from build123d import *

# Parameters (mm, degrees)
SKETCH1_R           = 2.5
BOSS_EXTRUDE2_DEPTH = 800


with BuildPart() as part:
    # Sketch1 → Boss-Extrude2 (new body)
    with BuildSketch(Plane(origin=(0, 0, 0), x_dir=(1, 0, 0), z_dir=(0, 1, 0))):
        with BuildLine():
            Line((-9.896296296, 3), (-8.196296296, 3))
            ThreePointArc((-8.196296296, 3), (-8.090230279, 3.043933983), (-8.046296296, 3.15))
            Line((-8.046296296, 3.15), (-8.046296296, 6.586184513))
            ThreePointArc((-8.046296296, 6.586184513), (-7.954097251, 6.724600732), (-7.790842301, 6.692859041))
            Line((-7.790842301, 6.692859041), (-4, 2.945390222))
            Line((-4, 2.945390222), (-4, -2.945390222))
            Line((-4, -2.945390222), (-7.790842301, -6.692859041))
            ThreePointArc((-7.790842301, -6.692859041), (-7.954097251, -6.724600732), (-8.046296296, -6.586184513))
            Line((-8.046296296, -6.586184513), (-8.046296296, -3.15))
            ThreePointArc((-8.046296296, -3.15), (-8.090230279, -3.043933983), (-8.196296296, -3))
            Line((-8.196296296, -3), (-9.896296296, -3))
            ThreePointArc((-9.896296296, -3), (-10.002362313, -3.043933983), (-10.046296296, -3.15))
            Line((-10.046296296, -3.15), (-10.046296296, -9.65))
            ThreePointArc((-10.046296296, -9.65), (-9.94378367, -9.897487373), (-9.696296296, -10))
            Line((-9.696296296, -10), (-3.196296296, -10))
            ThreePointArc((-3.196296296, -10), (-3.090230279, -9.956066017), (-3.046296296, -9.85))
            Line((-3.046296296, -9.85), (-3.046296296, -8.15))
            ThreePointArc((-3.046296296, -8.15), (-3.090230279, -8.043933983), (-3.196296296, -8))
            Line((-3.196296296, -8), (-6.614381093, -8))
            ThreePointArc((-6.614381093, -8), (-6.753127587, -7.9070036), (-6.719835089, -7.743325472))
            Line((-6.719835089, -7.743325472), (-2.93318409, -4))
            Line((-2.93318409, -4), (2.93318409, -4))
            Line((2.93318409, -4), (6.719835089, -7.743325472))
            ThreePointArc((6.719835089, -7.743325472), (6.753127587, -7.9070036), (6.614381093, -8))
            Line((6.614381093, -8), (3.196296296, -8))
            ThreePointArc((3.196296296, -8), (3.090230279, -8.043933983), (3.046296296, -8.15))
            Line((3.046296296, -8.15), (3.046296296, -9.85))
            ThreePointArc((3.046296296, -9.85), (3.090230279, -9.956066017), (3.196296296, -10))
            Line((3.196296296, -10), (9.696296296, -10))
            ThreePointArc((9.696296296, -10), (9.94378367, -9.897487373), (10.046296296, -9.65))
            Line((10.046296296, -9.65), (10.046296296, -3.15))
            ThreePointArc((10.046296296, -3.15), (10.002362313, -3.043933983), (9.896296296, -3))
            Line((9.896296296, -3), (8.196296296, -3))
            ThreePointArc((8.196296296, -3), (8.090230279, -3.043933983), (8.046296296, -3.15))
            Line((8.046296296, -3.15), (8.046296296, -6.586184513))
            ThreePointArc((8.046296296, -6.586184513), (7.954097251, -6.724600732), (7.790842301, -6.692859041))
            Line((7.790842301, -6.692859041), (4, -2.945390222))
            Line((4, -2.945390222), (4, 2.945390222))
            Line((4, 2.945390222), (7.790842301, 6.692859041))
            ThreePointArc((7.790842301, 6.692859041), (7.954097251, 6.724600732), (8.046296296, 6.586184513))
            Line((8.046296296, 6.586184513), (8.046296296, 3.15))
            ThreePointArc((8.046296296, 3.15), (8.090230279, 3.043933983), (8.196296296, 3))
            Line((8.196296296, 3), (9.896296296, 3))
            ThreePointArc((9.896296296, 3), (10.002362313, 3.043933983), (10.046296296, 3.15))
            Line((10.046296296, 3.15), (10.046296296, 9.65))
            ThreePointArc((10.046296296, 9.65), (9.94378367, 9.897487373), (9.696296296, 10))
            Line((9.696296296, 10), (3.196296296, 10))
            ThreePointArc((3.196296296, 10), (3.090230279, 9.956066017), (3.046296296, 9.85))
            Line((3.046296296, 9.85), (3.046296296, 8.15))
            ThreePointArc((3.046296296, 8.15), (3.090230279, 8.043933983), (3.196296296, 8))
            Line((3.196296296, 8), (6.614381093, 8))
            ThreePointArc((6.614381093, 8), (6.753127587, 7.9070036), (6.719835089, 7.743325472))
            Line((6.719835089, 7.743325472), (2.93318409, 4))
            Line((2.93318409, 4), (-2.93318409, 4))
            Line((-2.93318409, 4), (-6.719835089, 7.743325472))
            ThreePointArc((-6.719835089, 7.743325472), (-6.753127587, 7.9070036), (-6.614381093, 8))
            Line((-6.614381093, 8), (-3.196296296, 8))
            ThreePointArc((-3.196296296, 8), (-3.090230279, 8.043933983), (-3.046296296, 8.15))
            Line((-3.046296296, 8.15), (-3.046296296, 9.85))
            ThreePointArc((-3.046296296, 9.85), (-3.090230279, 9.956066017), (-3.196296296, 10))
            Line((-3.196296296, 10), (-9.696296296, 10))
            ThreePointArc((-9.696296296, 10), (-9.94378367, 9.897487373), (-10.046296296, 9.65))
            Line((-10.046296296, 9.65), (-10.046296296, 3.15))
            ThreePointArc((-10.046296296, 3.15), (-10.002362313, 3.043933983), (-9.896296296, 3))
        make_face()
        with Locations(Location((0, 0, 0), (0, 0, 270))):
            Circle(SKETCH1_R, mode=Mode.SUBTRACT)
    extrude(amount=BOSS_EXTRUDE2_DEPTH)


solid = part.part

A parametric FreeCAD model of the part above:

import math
import FreeCAD as App
import Part
import Sketcher

V = App.Vector

doc = App.newDocument("Part")
body = doc.addObject("PartDesign::Body", "Body")

sketch1 = body.newObject("Sketcher::SketchObject", "Sketch")
sketch1.AttachmentSupport = (doc.getObject("XZ_Plane"), [""])
sketch1.MapMode = "FlatFace"
sketch1.addGeometry([
    Part.LineSegment(V(-9.9, -3, 0), V(-8.2, -3, 0)),
    Part.ArcOfCircle(Part.Circle(V(-8.2, -3.15, 0), V(0, 0, 1), 0.15), math.radians(0), math.radians(90)),
    Part.LineSegment(V(-8.05, -3.15, 0), V(-8.05, -6.59, 0)),
    Part.ArcOfCircle(Part.Circle(V(-7.9, -6.59, 0), V(0, 0, 1), 0.15), math.radians(180), math.radians(315)),
    Part.LineSegment(V(-7.79, -6.69, 0), V(-4, -2.95, 0)),
    Part.LineSegment(V(-4, -2.95, 0), V(-4, 2.95, 0)),
    Part.LineSegment(V(-4, 2.95, 0), V(-7.79, 6.69, 0)),
    Part.ArcOfCircle(Part.Circle(V(-7.9, 6.59, 0), V(0, 0, 1), 0.15), math.radians(45), math.radians(180)),
    Part.LineSegment(V(-8.05, 6.59, 0), V(-8.05, 3.15, 0)),
    Part.ArcOfCircle(Part.Circle(V(-8.2, 3.15, 0), V(0, 0, 1), 0.15), math.radians(-90), math.radians(0)),
    Part.LineSegment(V(-8.2, 3, 0), V(-9.9, 3, 0)),
    Part.ArcOfCircle(Part.Circle(V(-9.9, 3.15, 0), V(0, 0, 1), 0.15), math.radians(-180), math.radians(-90)),
    Part.LineSegment(V(-10.05, 3.15, 0), V(-10.05, 9.65, 0)),
    Part.ArcOfCircle(Part.Circle(V(-9.7, 9.65, 0), V(0, 0, 1), 0.35), math.radians(90), math.radians(180)),
    Part.LineSegment(V(-9.7, 10, 0), V(-3.2, 10, 0)),
    Part.ArcOfCircle(Part.Circle(V(-3.2, 9.85, 0), V(0, 0, 1), 0.15), math.radians(0), math.radians(90)),
    Part.LineSegment(V(-3.05, 9.85, 0), V(-3.05, 8.15, 0)),
    Part.ArcOfCircle(Part.Circle(V(-3.2, 8.15, 0), V(0, 0, 1), 0.15), math.radians(-90), math.radians(0)),
    Part.LineSegment(V(-3.2, 8, 0), V(-6.61, 8, 0)),
    Part.ArcOfCircle(Part.Circle(V(-6.61, 7.85, 0), V(0, 0, 1), 0.15), math.radians(90), math.radians(225)),
    Part.LineSegment(V(-6.72, 7.74, 0), V(-2.93, 4, 0)),
    Part.LineSegment(V(-2.93, 4, 0), V(2.93, 4, 0)),
    Part.LineSegment(V(2.93, 4, 0), V(6.72, 7.74, 0)),
    Part.ArcOfCircle(Part.Circle(V(6.61, 7.85, 0), V(0, 0, 1), 0.15), math.radians(-45), math.radians(90)),
    Part.LineSegment(V(6.61, 8, 0), V(3.2, 8, 0)),
    Part.ArcOfCircle(Part.Circle(V(3.2, 8.15, 0), V(0, 0, 1), 0.15), math.radians(-180), math.radians(-90)),
    Part.LineSegment(V(3.05, 8.15, 0), V(3.05, 9.85, 0)),
    Part.ArcOfCircle(Part.Circle(V(3.2, 9.85, 0), V(0, 0, 1), 0.15), math.radians(90), math.radians(180)),
    Part.LineSegment(V(3.2, 10, 0), V(9.7, 10, 0)),
    Part.ArcOfCircle(Part.Circle(V(9.7, 9.65, 0), V(0, 0, 1), 0.35), math.radians(0), math.radians(90)),
    Part.LineSegment(V(10.05, 9.65, 0), V(10.05, 3.15, 0)),
    Part.ArcOfCircle(Part.Circle(V(9.9, 3.15, 0), V(0, 0, 1), 0.15), math.radians(-90), math.radians(0)),
    Part.LineSegment(V(9.9, 3, 0), V(8.2, 3, 0)),
    Part.ArcOfCircle(Part.Circle(V(8.2, 3.15, 0), V(0, 0, 1), 0.15), math.radians(-180), math.radians(-90)),
    Part.LineSegment(V(8.05, 3.15, 0), V(8.05, 6.59, 0)),
    Part.ArcOfCircle(Part.Circle(V(7.9, 6.59, 0), V(0, 0, 1), 0.15), math.radians(0), math.radians(135)),
    Part.LineSegment(V(7.79, 6.69, 0), V(4, 2.95, 0)),
    Part.LineSegment(V(4, 2.95, 0), V(4, -2.95, 0)),
    Part.LineSegment(V(4, -2.95, 0), V(7.79, -6.69, 0)),
    Part.ArcOfCircle(Part.Circle(V(7.9, -6.59, 0), V(0, 0, 1), 0.15), math.radians(-135), math.radians(0)),
    Part.LineSegment(V(8.05, -6.59, 0), V(8.05, -3.15, 0)),
    Part.ArcOfCircle(Part.Circle(V(8.2, -3.15, 0), V(0, 0, 1), 0.15), math.radians(90), math.radians(180)),
    Part.LineSegment(V(8.2, -3, 0), V(9.9, -3, 0)),
    Part.ArcOfCircle(Part.Circle(V(9.9, -3.15, 0), V(0, 0, 1), 0.15), math.radians(0), math.radians(90)),
    Part.LineSegment(V(10.05, -3.15, 0), V(10.05, -9.65, 0)),
    Part.ArcOfCircle(Part.Circle(V(9.7, -9.65, 0), V(0, 0, 1), 0.35), math.radians(-90), math.radians(0)),
    Part.LineSegment(V(9.7, -10, 0), V(3.2, -10, 0)),
    Part.ArcOfCircle(Part.Circle(V(3.2, -9.85, 0), V(0, 0, 1), 0.15), math.radians(-180), math.radians(-90)),
    Part.LineSegment(V(3.05, -9.85, 0), V(3.05, -8.15, 0)),
    Part.ArcOfCircle(Part.Circle(V(3.2, -8.15, 0), V(0, 0, 1), 0.15), math.radians(90), math.radians(180)),
    Part.LineSegment(V(3.2, -8, 0), V(6.61, -8, 0)),
    Part.ArcOfCircle(Part.Circle(V(6.61, -7.85, 0), V(0, 0, 1), 0.15), math.radians(-90), math.radians(45)),
    Part.LineSegment(V(6.72, -7.74, 0), V(2.93, -4, 0)),
    Part.LineSegment(V(2.93, -4, 0), V(-2.93, -4, 0)),
    Part.LineSegment(V(-2.93, -4, 0), V(-6.72, -7.74, 0)),
    Part.ArcOfCircle(Part.Circle(V(-6.61, -7.85, 0), V(0, 0, 1), 0.15), math.radians(135), math.radians(270)),
    Part.LineSegment(V(-6.61, -8, 0), V(-3.2, -8, 0)),
    Part.ArcOfCircle(Part.Circle(V(-3.2, -8.15, 0), V(0, 0, 1), 0.15), math.radians(0), math.radians(90)),
    Part.LineSegment(V(-3.05, -8.15, 0), V(-3.05, -9.85, 0)),
    Part.ArcOfCircle(Part.Circle(V(-3.2, -9.85, 0), V(0, 0, 1), 0.15), math.radians(-90), math.radians(0)),
    Part.LineSegment(V(-3.2, -10, 0), V(-9.7, -10, 0)),
    Part.ArcOfCircle(Part.Circle(V(-9.7, -9.65, 0), V(0, 0, 1), 0.35), math.radians(180), math.radians(270)),
    Part.LineSegment(V(-10.05, -9.65, 0), V(-10.05, -3.15, 0)),
    Part.ArcOfCircle(Part.Circle(V(-9.9, -3.15, 0), V(0, 0, 1), 0.15), math.radians(90), math.radians(180)),
    Part.Circle(V(0, 0, 0), V(0, 0, 1), 2.5),
], False)
sketch1.addConstraint([
    Sketcher.Constraint("Tangent", 0, 2, 1, 2),
    Sketcher.Constraint("Tangent", 1, 1, 2, 1),
    Sketcher.Constraint("Tangent", 2, 2, 3, 1),
    Sketcher.Constraint("Tangent", 3, 2, 4, 1),
    Sketcher.Constraint("Coincident", 4, 2, 5, 1),
    Sketcher.Constraint("Coincident", 5, 2, 6, 1),
    Sketcher.Constraint("Tangent", 6, 2, 7, 1),
    Sketcher.Constraint("Tangent", 7, 2, 8, 1),
    Sketcher.Constraint("Tangent", 8, 2, 9, 2),
    Sketcher.Constraint("Tangent", 9, 1, 10, 1),
    Sketcher.Constraint("Tangent", 10, 2, 11, 2),
    Sketcher.Constraint("Tangent", 11, 1, 12, 1),
    Sketcher.Constraint("Tangent", 12, 2, 13, 2),
    Sketcher.Constraint("Tangent", 13, 1, 14, 1),
    Sketcher.Constraint("Tangent", 14, 2, 15, 2),
    Sketcher.Constraint("Tangent", 15, 1, 16, 1),
    Sketcher.Constraint("Tangent", 16, 2, 17, 2),
    Sketcher.Constraint("Tangent", 17, 1, 18, 1),
    Sketcher.Constraint("Tangent", 18, 2, 19, 1),
    Sketcher.Constraint("Tangent", 19, 2, 20, 1),
    Sketcher.Constraint("Coincident", 20, 2, 21, 1),
    Sketcher.Constraint("Coincident", 21, 2, 22, 1),
    Sketcher.Constraint("Tangent", 22, 2, 23, 1),
    Sketcher.Constraint("Tangent", 23, 2, 24, 1),
    Sketcher.Constraint("Tangent", 24, 2, 25, 2),
    Sketcher.Constraint("Tangent", 25, 1, 26, 1),
    Sketcher.Constraint("Tangent", 26, 2, 27, 2),
    Sketcher.Constraint("Tangent", 27, 1, 28, 1),
    Sketcher.Constraint("Tangent", 28, 2, 29, 2),
    Sketcher.Constraint("Tangent", 29, 1, 30, 1),
    Sketcher.Constraint("Tangent", 30, 2, 31, 2),
    Sketcher.Constraint("Tangent", 31, 1, 32, 1),
    Sketcher.Constraint("Tangent", 32, 2, 33, 2),
    Sketcher.Constraint("Tangent", 33, 1, 34, 1),
    Sketcher.Constraint("Tangent", 34, 2, 35, 1),
    Sketcher.Constraint("Tangent", 35, 2, 36, 1),
    Sketcher.Constraint("Coincident", 36, 2, 37, 1),
    Sketcher.Constraint("Coincident", 37, 2, 38, 1),
    Sketcher.Constraint("Tangent", 38, 2, 39, 1),
    Sketcher.Constraint("Tangent", 39, 2, 40, 1),
    Sketcher.Constraint("Tangent", 40, 2, 41, 2),
    Sketcher.Constraint("Tangent", 41, 1, 42, 1),
    Sketcher.Constraint("Tangent", 42, 2, 43, 2),
    Sketcher.Constraint("Tangent", 43, 1, 44, 1),
    Sketcher.Constraint("Tangent", 44, 2, 45, 2),
    Sketcher.Constraint("Tangent", 45, 1, 46, 1),
    Sketcher.Constraint("Tangent", 46, 2, 47, 2),
    Sketcher.Constraint("Tangent", 47, 1, 48, 1),
    Sketcher.Constraint("Tangent", 48, 2, 49, 2),
    Sketcher.Constraint("Tangent", 49, 1, 50, 1),
    Sketcher.Constraint("Tangent", 50, 2, 51, 1),
    Sketcher.Constraint("Tangent", 51, 2, 52, 1),
    Sketcher.Constraint("Coincident", 52, 2, 53, 1),
    Sketcher.Constraint("Coincident", 53, 2, 54, 1),
    Sketcher.Constraint("Tangent", 54, 2, 55, 1),
    Sketcher.Constraint("Tangent", 55, 2, 56, 1),
    Sketcher.Constraint("Tangent", 56, 2, 57, 2),
    Sketcher.Constraint("Tangent", 57, 1, 58, 1),
    Sketcher.Constraint("Tangent", 58, 2, 59, 2),
    Sketcher.Constraint("Tangent", 59, 1, 60, 1),
    Sketcher.Constraint("Tangent", 60, 2, 61, 2),
    Sketcher.Constraint("Tangent", 61, 1, 62, 1),
    Sketcher.Constraint("Tangent", 62, 2, 63, 2),
    Sketcher.Constraint("Tangent", 63, 1, 0, 1),
    Sketcher.Constraint("Horizontal", 0),
    Sketcher.Constraint("Vertical", 2),
    Sketcher.Constraint("Vertical", 5),
    Sketcher.Constraint("Vertical", 8),
    Sketcher.Constraint("Horizontal", 10),
    Sketcher.Constraint("Vertical", 12),
    Sketcher.Constraint("Horizontal", 14),
    Sketcher.Constraint("Vertical", 16),
    Sketcher.Constraint("Horizontal", 18),
    Sketcher.Constraint("Horizontal", 21),
    Sketcher.Constraint("Horizontal", 24),
    Sketcher.Constraint("Vertical", 26),
    Sketcher.Constraint("Horizontal", 28),
    Sketcher.Constraint("Vertical", 30),
    Sketcher.Constraint("Horizontal", 32),
    Sketcher.Constraint("Vertical", 34),
    Sketcher.Constraint("Vertical", 37),
    Sketcher.Constraint("Vertical", 40),
    Sketcher.Constraint("Horizontal", 42),
    Sketcher.Constraint("Vertical", 44),
    Sketcher.Constraint("Horizontal", 46),
    Sketcher.Constraint("Vertical", 48),
    Sketcher.Constraint("Horizontal", 50),
    Sketcher.Constraint("Horizontal", 53),
    Sketcher.Constraint("Horizontal", 56),
    Sketcher.Constraint("Vertical", 58),
    Sketcher.Constraint("Horizontal", 60),
    Sketcher.Constraint("Vertical", 62),
    Sketcher.Constraint("Coincident", 64, 3, -1, 1),
    Sketcher.Constraint("Equal", 1, 3),
    Sketcher.Constraint("Equal", 3, 7),
    Sketcher.Constraint("Equal", 7, 9),
    Sketcher.Constraint("Equal", 9, 11),
    Sketcher.Constraint("Equal", 11, 15),
    Sketcher.Constraint("Equal", 15, 17),
    Sketcher.Constraint("Equal", 17, 19),
    Sketcher.Constraint("Equal", 19, 23),
    Sketcher.Constraint("Equal", 23, 25),
    Sketcher.Constraint("Equal", 25, 27),
    Sketcher.Constraint("Equal", 13, 29),
    Sketcher.Constraint("Equal", 27, 31),
    Sketcher.Constraint("Equal", 31, 33),
    Sketcher.Constraint("Equal", 33, 35),
    Sketcher.Constraint("Equal", 35, 39),
    Sketcher.Constraint("Equal", 39, 41),
    Sketcher.Constraint("Equal", 41, 43),
    Sketcher.Constraint("Equal", 29, 45),
    Sketcher.Constraint("Equal", 43, 47),
    Sketcher.Constraint("Equal", 47, 49),
    Sketcher.Constraint("Equal", 49, 51),
    Sketcher.Constraint("Equal", 51, 55),
    Sketcher.Constraint("Equal", 55, 57),
    Sketcher.Constraint("Equal", 57, 59),
    Sketcher.Constraint("Equal", 45, 61),
    Sketcher.Constraint("Equal", 59, 63),
    Sketcher.Constraint("Symmetric", 1, 3, 33, 3, -1, 1),
    Sketcher.Constraint("Symmetric", 7, 3, 39, 3, -1, 1),
    Sketcher.Constraint("Symmetric", 11, 3, 43, 3, -1, 1),
    Sketcher.Constraint("Symmetric", 15, 3, 47, 3, -1, 1),
    Sketcher.Constraint("Symmetric", 19, 3, 51, 3, -1, 1),
    Sketcher.Constraint("Symmetric", 23, 3, 55, 3, -1, 1),
    Sketcher.Constraint("Symmetric", 27, 3, 59, 3, -1, 1),
    Sketcher.Constraint("Symmetric", 3, 2, 35, 2, -1, 1),
    Sketcher.Constraint("Symmetric", 5, 2, 37, 2, -1, 1),
    Sketcher.Constraint("Symmetric", 20, 2, 52, 2, -1, 1),
    Sketcher.Constraint("Symmetric", 19, 3, 23, 3, -2),
    Sketcher.Constraint("Symmetric", 15, 3, 27, 3, -2),
    Sketcher.Constraint("Symmetric", 11, 3, 31, 3, -2),
    Sketcher.Constraint("Symmetric", 7, 3, 35, 3, -2),
    Sketcher.Constraint("Parallel", 6, 20),
    Sketcher.Constraint("Parallel", 4, 22),
    Sketcher.Constraint("Parallel", 36, 54),
    Sketcher.Constraint("Horizontal", 19, 2, 22, 2),
    Sketcher.Constraint("Vertical", 13, 3, 61, 3),
    Sketcher.Constraint("Equal", 60, 12),
    Sketcher.Constraint("Equal", 42, 16),
    Sketcher.Constraint("Diameter", 64, 5.0),
    Sketcher.Constraint("Radius", 1, 0.15),
    Sketcher.Constraint("Radius", 13, 0.35),
    Sketcher.Constraint("DistanceX", 0, 1, 0, 2, 1.7),
    Sketcher.Constraint("DistanceX", 14, 1, 14, 2, 6.5),
    Sketcher.Constraint("DistanceY", 0, 2, -1, 1, 3.0),
    Sketcher.Constraint("DistanceX", 4, 2, -1, 1, 4.0),
    Sketcher.Constraint("DistanceY", -1, 1, 20, 2, 4.0),
    Sketcher.Constraint("DistanceX", 21, 1, 21, 2, 5.866368),
    Sketcher.Constraint("DistanceY", 5, 1, 5, 2, 5.89078),
    Sketcher.Constraint("Distance", 4, 5.330479),
    Sketcher.Constraint("DistanceX", 18, 2, 18, 1, 3.418085),
])
pad1 = body.newObject("PartDesign::Pad", "Pad")
pad1.Profile = sketch1
pad1.Length = 800
pad1.Reversed = True

doc.recompute()
